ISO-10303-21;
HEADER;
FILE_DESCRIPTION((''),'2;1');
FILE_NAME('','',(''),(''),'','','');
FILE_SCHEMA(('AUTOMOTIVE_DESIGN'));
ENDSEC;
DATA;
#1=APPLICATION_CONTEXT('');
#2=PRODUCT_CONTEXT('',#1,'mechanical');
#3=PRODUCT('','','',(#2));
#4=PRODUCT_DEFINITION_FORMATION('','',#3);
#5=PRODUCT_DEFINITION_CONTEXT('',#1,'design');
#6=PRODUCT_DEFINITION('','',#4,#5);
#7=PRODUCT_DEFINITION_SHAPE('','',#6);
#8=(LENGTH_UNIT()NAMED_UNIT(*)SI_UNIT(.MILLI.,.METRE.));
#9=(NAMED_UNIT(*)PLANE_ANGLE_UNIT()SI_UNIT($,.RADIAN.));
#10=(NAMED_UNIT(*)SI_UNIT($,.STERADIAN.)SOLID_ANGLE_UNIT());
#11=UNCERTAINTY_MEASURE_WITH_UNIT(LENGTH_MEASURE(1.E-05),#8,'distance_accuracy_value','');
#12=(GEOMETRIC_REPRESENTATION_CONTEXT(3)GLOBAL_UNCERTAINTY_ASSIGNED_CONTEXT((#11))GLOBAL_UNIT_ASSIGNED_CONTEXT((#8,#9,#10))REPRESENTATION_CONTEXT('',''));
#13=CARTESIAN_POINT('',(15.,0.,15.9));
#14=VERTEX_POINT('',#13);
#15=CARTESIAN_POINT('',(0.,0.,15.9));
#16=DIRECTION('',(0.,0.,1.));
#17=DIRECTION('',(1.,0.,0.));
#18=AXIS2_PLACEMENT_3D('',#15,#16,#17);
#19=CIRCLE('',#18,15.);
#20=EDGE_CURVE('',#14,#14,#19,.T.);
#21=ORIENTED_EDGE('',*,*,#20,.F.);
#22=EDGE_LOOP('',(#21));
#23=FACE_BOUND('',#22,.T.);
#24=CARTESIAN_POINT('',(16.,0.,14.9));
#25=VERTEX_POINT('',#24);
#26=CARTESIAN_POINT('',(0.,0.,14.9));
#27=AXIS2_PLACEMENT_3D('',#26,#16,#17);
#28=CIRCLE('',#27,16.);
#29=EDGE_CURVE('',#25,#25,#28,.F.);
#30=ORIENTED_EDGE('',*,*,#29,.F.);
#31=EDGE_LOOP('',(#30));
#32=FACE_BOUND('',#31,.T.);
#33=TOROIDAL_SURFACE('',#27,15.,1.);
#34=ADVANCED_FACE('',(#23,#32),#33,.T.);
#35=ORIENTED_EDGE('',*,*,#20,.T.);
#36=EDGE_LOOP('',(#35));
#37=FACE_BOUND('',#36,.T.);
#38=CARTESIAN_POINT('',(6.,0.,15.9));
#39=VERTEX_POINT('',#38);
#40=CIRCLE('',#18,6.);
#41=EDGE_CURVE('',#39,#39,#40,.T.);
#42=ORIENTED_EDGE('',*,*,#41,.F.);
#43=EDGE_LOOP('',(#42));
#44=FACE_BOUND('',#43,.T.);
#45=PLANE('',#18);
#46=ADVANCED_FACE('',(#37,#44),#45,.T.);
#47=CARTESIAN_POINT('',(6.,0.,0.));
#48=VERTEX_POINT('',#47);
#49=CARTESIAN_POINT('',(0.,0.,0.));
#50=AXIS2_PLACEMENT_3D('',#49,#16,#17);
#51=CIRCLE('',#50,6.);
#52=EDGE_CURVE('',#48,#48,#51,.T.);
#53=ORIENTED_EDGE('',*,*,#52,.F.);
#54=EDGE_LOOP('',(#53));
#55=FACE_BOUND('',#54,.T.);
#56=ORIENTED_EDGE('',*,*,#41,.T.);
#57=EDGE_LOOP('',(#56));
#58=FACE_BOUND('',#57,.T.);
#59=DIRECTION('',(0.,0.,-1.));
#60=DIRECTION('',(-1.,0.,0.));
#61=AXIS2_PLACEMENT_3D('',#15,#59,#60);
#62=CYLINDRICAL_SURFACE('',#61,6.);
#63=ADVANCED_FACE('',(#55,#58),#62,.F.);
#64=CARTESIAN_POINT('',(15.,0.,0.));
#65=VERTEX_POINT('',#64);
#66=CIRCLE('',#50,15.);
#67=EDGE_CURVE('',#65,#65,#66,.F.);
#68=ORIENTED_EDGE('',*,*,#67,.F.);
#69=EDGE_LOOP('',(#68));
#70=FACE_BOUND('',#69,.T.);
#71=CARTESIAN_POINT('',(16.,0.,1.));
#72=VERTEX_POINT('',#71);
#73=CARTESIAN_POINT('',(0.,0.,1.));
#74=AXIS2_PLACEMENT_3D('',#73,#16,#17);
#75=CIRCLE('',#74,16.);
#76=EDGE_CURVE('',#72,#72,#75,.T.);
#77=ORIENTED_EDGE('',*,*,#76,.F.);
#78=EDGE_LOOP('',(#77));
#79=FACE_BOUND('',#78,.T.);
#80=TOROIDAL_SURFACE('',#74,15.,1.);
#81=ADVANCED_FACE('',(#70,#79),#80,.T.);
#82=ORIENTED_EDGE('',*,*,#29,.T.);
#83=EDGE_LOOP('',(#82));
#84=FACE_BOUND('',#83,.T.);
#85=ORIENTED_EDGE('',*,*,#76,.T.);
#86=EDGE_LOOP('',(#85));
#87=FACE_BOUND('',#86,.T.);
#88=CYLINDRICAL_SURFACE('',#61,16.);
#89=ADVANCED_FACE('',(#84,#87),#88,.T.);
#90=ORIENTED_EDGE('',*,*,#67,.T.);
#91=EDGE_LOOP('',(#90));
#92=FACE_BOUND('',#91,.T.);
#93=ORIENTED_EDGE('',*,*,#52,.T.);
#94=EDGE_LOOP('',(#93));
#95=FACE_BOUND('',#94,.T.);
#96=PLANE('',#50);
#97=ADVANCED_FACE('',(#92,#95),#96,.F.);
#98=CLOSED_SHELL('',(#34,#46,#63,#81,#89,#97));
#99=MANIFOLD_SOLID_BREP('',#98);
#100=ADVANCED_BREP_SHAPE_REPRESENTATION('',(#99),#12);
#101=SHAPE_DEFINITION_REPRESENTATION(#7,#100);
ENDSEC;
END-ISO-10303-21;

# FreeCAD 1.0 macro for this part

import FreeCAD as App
import Part
import Sketcher


def edges_at(feature, points):
    """Names of the edges that pass closest to the given points."""
    edges = feature.Shape.Edges
    near = lambda p: min(range(len(edges)), key=lambda i: edges[i].distToShape(Part.Vertex(*p))[0])
    return sorted({f"Edge{near(p) + 1}" for p in points})

doc = App.newDocument("Part")
body = doc.addObject("PartDesign::Body", "Body")

sketch1 = body.newObject("Sketcher::SketchObject", "Sketch")
sketch1.AttachmentSupport = (doc.getObject("XY_Plane"), [""])
sketch1.MapMode = "FlatFace"
sketch1.addGeometry([
    Part.Circle(App.Vector(0, 0, 0), App.Vector(0, 0, 1), 16),
    Part.Circle(App.Vector(0, 0, 0), App.Vector(0, 0, 1), 6),
], False)
sketch1.addConstraint([
    Sketcher.Constraint("Coincident", 0, 3, -1, 1),
    Sketcher.Constraint("Coincident", 1, 3, -1, 1),
    Sketcher.Constraint("Diameter", 0, 32.0),
    Sketcher.Constraint("Diameter", 1, 12.0),
])
pad1 = body.newObject("PartDesign::Pad", "Pad")
pad1.Profile = sketch1
pad1.Length = 15.9
doc.recompute()

fillet = body.newObject("PartDesign::Fillet", "Fillet")
fillet.Base = (pad1, edges_at(pad1, [(-16, 0, 0), (-16, 0, 15.9)]))
fillet.Radius = 1

doc.recompute()
